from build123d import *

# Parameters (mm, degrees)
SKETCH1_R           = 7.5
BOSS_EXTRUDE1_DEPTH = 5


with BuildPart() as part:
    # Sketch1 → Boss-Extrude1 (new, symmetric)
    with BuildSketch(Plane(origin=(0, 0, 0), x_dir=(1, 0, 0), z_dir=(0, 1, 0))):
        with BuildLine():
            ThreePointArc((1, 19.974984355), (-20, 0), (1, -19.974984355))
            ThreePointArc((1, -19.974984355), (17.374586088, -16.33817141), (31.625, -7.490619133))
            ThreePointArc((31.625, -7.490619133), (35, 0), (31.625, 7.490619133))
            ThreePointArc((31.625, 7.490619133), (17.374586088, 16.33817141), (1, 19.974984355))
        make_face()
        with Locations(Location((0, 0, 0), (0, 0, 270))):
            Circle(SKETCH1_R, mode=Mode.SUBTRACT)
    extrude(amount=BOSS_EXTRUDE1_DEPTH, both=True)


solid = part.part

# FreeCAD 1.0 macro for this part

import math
import FreeCAD as App
import Part
import Sketcher

V = App.Vector
Q = App.Units.Quantity

doc = App.newDocument("Part")
body = doc.addObject("PartDesign::Body", "Body")

sketch1 = doc.addObject("Sketcher::SketchObject", "Sketch")
body.addObject(sketch1)
sketch1.AttachmentSupport = (doc.XZ_Plane, [""])
sketch1.MapMode = "FlatFace"
sketch1.addGeometry(Part.ArcOfCircle(Part.Circle(V(0, 0, 0), V(0, 0, 1), 20), math.radians(87.134016), math.radians(272.865984)), False)
sketch1.addGeometry(Part.ArcOfCircle(Part.Circle(V(-1.5, -29.962477, 0), V(0, 0, 1), 50), math.radians(48.509183), math.radians(87.134016)), False)
sketch1.addGeometry(Part.ArcOfCircle(Part.Circle(V(25, 0, 0), V(0, 0, 1), 10), math.radians(-48.509183), math.radians(48.509183)), False)
sketch1.addGeometry(Part.ArcOfCircle(Part.Circle(V(-1.5, 29.962477, 0), V(0, 0, 1), 50), math.radians(-87.134016), math.radians(-48.509183)), False)
sketch1.addGeometry(Part.Circle(V(0, 0, 0), V(0, 0, 1), 7.5), False)
sketch1.addConstraint(Sketcher.Constraint("Tangent", 0, 1, 1, 2))
sketch1.addConstraint(Sketcher.Constraint("Tangent", 1, 1, 2, 2))
sketch1.addConstraint(Sketcher.Constraint("Tangent", 2, 1, 3, 2))
sketch1.addConstraint(Sketcher.Constraint("Tangent", 3, 1, 0, 2))
sketch1.addConstraint(Sketcher.Constraint("Coincident", 0, 3, -1, 1))
sketch1.addConstraint(Sketcher.Constraint("Coincident", 4, 3, -1, 1))
sketch1.addConstraint(Sketcher.Constraint("Equal", 1, 3))
sketch1.addConstraint(Sketcher.Constraint("PointOnObject", 2, 3, -1))
sketch1.addConstraint(Sketcher.Constraint("Diameter", 4, Q("15 mm")))
sketch1.addConstraint(Sketcher.Constraint("Radius", 0, Q("20 mm")))
sketch1.addConstraint(Sketcher.Constraint("Radius", 1, Q("50 mm")))
sketch1.addConstraint(Sketcher.Constraint("Radius", 2, Q("10 mm")))
sketch1.addConstraint(Sketcher.Constraint("DistanceX", -1, 1, 2, 3, Q("25 mm")))
pad1 = doc.addObject("PartDesign::Pad", "Pad")
body.addObject(pad1)
pad1.Profile = sketch1
pad1.Length = 10
pad1.Midplane = True

doc.recompute()
